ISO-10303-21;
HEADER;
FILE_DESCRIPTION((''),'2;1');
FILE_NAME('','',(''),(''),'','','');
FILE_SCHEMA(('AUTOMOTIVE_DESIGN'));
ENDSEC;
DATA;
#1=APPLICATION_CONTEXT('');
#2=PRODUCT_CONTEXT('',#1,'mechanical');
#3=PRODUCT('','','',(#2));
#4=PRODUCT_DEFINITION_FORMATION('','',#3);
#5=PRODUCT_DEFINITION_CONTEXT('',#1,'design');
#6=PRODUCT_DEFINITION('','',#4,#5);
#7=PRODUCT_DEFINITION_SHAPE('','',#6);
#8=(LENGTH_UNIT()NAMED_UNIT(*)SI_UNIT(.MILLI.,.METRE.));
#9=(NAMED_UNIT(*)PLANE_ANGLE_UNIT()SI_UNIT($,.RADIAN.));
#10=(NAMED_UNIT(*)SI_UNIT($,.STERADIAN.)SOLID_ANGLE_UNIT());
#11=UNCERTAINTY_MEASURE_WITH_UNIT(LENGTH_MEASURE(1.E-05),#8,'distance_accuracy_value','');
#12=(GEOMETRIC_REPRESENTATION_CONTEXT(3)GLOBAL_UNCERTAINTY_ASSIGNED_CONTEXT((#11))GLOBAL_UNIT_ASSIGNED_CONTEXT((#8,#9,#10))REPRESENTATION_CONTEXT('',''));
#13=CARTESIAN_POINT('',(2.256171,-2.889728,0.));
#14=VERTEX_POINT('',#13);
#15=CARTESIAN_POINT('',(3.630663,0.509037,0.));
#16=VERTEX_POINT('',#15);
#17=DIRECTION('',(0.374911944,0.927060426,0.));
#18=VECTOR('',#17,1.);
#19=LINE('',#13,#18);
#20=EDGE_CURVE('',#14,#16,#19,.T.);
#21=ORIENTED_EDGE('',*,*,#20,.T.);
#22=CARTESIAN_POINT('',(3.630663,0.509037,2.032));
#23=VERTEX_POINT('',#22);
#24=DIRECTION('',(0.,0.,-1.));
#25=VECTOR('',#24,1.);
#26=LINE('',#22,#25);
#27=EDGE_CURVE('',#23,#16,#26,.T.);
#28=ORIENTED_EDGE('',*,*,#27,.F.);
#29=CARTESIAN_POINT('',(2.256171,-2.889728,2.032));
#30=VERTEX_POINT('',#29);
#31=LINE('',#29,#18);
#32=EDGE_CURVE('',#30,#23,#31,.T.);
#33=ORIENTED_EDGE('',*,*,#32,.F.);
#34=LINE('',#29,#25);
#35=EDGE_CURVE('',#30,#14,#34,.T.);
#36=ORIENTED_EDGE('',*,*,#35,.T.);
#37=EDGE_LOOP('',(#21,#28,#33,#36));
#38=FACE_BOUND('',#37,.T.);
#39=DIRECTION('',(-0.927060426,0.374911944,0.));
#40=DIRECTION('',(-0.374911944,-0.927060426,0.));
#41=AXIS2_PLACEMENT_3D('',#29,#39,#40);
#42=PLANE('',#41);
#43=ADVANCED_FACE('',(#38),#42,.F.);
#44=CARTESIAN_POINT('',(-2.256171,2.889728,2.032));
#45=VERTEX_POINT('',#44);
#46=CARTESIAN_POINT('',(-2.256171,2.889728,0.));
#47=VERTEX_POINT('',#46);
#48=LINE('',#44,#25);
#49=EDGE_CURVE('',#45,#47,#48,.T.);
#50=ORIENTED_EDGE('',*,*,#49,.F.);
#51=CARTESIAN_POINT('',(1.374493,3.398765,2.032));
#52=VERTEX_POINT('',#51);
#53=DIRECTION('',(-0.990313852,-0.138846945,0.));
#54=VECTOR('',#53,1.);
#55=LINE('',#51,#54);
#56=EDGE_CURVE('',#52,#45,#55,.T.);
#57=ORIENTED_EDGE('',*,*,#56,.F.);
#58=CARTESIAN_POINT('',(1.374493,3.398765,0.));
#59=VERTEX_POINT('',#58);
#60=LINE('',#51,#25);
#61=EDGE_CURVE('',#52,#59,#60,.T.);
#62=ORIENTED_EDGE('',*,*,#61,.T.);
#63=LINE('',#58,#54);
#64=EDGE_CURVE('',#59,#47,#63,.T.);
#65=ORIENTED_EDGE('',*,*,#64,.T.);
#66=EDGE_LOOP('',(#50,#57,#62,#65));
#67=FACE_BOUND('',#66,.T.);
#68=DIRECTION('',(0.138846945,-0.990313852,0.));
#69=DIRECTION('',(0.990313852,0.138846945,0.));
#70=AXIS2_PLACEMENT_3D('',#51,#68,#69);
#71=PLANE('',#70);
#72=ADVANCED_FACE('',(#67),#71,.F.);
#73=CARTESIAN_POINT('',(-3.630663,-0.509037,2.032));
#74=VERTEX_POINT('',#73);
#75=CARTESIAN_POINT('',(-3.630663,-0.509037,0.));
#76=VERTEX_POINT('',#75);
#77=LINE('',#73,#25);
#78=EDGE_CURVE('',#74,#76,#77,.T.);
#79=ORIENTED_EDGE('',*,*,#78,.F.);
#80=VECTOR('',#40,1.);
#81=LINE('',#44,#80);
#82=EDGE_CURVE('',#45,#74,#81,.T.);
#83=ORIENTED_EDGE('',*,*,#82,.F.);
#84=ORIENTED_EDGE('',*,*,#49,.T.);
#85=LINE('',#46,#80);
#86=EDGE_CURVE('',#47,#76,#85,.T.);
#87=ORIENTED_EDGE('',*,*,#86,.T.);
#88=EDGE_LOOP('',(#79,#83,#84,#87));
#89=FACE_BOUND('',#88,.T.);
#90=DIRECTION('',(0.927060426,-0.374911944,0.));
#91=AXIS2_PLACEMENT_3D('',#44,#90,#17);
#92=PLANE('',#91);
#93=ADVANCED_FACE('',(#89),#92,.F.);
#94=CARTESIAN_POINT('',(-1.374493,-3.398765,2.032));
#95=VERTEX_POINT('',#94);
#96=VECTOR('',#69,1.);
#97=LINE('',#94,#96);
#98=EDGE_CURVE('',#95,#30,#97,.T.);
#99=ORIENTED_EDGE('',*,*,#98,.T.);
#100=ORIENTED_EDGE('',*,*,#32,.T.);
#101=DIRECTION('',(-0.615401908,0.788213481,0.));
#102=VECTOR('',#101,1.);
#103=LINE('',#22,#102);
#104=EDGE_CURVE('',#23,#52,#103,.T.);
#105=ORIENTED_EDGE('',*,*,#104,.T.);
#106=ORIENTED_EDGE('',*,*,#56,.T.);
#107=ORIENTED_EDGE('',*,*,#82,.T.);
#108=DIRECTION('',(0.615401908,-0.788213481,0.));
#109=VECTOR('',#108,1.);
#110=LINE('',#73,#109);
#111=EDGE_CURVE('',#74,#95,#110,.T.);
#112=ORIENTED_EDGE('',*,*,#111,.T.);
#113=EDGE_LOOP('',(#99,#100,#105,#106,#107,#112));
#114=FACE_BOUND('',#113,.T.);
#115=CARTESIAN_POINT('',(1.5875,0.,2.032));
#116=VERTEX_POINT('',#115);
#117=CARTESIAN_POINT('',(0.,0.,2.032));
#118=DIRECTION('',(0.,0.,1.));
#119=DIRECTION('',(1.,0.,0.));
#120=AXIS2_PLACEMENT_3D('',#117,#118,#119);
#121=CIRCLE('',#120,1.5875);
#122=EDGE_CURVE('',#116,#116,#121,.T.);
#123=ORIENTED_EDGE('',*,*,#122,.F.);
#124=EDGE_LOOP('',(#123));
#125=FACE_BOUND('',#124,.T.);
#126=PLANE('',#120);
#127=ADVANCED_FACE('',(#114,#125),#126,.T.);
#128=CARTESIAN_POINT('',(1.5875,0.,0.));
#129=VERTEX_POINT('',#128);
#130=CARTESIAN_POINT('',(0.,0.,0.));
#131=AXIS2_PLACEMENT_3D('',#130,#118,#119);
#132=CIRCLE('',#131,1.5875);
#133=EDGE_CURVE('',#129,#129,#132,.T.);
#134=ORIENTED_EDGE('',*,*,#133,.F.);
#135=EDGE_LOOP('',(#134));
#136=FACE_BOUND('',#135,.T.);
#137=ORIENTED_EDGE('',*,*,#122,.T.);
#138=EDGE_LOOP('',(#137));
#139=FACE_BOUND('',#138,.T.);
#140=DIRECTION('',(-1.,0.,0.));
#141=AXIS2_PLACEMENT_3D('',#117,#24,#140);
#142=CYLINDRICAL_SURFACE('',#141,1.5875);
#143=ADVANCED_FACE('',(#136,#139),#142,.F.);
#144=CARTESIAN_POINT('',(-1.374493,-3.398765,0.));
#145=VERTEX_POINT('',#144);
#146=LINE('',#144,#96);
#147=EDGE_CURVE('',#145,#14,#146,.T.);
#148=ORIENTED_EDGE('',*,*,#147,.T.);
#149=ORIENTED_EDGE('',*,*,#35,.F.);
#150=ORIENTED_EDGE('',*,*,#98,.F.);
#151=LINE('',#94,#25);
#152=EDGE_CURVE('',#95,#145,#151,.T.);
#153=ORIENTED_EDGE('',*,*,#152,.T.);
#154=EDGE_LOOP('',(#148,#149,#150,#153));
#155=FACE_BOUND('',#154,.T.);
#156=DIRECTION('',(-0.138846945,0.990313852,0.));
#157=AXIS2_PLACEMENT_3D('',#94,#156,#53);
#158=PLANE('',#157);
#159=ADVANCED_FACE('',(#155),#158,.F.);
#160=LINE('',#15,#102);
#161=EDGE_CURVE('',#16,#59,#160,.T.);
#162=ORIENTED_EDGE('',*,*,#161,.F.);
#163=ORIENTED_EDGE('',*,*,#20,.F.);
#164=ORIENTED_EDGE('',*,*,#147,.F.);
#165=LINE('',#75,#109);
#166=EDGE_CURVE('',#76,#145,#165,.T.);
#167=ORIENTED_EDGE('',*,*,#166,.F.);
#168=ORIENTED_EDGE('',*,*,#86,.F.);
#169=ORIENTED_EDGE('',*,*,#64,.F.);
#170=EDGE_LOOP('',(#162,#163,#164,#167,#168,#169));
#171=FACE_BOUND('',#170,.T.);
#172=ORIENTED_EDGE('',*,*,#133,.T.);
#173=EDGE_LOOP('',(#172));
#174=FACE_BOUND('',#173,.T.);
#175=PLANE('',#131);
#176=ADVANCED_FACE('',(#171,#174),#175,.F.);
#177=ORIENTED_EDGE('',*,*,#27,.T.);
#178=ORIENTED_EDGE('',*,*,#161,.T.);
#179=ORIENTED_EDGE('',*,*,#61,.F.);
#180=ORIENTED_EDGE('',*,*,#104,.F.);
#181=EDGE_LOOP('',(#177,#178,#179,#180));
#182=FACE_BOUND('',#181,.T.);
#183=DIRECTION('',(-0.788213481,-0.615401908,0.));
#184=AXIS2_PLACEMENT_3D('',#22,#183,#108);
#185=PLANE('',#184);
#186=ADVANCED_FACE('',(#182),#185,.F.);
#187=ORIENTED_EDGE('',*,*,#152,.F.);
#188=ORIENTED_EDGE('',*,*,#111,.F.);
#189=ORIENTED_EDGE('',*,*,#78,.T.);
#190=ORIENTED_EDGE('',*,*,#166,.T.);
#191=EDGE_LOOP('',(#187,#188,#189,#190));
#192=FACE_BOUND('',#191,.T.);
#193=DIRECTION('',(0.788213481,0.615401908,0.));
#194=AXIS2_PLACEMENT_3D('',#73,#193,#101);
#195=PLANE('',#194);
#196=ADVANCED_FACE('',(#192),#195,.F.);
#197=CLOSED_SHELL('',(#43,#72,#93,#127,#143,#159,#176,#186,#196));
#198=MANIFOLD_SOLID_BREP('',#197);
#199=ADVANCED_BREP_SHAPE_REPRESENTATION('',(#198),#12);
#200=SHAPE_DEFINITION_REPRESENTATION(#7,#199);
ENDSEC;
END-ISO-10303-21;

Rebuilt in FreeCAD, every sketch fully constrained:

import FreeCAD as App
import Part
import Sketcher
from FreeCAD import Vector
Q = App.Units.Quantity


def add_polygon(sketch, points):
    """Adds a closed chain of lines whose ends are joined by coincident constraints."""
    first, n = sketch.GeometryCount, len(points)
    for a, b in zip(points, points[1:] + points[:1]):
        sketch.addGeometry(Part.LineSegment(App.Vector(*a, 0), App.Vector(*b, 0)), False)
    for i in range(n):
        sketch.addConstraint(Sketcher.Constraint("Coincident", first + i, 2, first + (i + 1) % n, 1))

doc = App.newDocument("Part")
body = doc.addObject("PartDesign::Body", "Body")

sketch1 = doc.addObject("Sketcher::SketchObject", "Sketch")
body.addObject(sketch1)
sketch1.AttachmentSupport = (doc.XY_Plane, [""])
sketch1.MapMode = "FlatFace"
add_polygon(sketch1, [(-3.6, -0.5), (-1.4, -3.4), (2.3, -2.9), (3.6, 0.5), (1.4, 3.4), (-2.3, 2.9)])
sketch1.addGeometry(Part.Circle(Vector(0, 0, 0), Vector(0, 0, 1), 1.6), False)
sketch1.addConstraint(Sketcher.Constraint("Coincident", 6, 3, -1, 1))
sketch1.addConstraint(Sketcher.Constraint("Symmetric", 0, 2, 3, 2, -1, 1))
sketch1.addConstraint(Sketcher.Constraint("Symmetric", 1, 2, 4, 2, -1, 1))
sketch1.addConstraint(Sketcher.Constraint("Symmetric", 2, 2, 5, 2, -1, 1))
sketch1.addConstraint(Sketcher.Constraint("Equal", 0, 1))
sketch1.addConstraint(Sketcher.Constraint("Equal", 1, 2))
sketch1.addConstraint(Sketcher.Constraint("Diameter", 6, Q("0.125 in")))
sketch1.addConstraint(Sketcher.Constraint("DistanceX", -1, 1, 1, 2, 2.256171))
sketch1.addConstraint(Sketcher.Constraint("DistanceX", 3, 2, 2, 2, 2.256171))
sketch1.addConstraint(Sketcher.Constraint("DistanceX", 3, 2, 1, 2, 0.881678))
sketch1.addConstraint(Sketcher.Constraint("DistanceY", 0, 2, 3, 2, 6.79753))
pad1 = doc.addObject("PartDesign::Pad", "Pad")
body.addObject(pad1)
pad1.Profile = sketch1
pad1.Length = Q("0.08 in")

doc.recompute()
